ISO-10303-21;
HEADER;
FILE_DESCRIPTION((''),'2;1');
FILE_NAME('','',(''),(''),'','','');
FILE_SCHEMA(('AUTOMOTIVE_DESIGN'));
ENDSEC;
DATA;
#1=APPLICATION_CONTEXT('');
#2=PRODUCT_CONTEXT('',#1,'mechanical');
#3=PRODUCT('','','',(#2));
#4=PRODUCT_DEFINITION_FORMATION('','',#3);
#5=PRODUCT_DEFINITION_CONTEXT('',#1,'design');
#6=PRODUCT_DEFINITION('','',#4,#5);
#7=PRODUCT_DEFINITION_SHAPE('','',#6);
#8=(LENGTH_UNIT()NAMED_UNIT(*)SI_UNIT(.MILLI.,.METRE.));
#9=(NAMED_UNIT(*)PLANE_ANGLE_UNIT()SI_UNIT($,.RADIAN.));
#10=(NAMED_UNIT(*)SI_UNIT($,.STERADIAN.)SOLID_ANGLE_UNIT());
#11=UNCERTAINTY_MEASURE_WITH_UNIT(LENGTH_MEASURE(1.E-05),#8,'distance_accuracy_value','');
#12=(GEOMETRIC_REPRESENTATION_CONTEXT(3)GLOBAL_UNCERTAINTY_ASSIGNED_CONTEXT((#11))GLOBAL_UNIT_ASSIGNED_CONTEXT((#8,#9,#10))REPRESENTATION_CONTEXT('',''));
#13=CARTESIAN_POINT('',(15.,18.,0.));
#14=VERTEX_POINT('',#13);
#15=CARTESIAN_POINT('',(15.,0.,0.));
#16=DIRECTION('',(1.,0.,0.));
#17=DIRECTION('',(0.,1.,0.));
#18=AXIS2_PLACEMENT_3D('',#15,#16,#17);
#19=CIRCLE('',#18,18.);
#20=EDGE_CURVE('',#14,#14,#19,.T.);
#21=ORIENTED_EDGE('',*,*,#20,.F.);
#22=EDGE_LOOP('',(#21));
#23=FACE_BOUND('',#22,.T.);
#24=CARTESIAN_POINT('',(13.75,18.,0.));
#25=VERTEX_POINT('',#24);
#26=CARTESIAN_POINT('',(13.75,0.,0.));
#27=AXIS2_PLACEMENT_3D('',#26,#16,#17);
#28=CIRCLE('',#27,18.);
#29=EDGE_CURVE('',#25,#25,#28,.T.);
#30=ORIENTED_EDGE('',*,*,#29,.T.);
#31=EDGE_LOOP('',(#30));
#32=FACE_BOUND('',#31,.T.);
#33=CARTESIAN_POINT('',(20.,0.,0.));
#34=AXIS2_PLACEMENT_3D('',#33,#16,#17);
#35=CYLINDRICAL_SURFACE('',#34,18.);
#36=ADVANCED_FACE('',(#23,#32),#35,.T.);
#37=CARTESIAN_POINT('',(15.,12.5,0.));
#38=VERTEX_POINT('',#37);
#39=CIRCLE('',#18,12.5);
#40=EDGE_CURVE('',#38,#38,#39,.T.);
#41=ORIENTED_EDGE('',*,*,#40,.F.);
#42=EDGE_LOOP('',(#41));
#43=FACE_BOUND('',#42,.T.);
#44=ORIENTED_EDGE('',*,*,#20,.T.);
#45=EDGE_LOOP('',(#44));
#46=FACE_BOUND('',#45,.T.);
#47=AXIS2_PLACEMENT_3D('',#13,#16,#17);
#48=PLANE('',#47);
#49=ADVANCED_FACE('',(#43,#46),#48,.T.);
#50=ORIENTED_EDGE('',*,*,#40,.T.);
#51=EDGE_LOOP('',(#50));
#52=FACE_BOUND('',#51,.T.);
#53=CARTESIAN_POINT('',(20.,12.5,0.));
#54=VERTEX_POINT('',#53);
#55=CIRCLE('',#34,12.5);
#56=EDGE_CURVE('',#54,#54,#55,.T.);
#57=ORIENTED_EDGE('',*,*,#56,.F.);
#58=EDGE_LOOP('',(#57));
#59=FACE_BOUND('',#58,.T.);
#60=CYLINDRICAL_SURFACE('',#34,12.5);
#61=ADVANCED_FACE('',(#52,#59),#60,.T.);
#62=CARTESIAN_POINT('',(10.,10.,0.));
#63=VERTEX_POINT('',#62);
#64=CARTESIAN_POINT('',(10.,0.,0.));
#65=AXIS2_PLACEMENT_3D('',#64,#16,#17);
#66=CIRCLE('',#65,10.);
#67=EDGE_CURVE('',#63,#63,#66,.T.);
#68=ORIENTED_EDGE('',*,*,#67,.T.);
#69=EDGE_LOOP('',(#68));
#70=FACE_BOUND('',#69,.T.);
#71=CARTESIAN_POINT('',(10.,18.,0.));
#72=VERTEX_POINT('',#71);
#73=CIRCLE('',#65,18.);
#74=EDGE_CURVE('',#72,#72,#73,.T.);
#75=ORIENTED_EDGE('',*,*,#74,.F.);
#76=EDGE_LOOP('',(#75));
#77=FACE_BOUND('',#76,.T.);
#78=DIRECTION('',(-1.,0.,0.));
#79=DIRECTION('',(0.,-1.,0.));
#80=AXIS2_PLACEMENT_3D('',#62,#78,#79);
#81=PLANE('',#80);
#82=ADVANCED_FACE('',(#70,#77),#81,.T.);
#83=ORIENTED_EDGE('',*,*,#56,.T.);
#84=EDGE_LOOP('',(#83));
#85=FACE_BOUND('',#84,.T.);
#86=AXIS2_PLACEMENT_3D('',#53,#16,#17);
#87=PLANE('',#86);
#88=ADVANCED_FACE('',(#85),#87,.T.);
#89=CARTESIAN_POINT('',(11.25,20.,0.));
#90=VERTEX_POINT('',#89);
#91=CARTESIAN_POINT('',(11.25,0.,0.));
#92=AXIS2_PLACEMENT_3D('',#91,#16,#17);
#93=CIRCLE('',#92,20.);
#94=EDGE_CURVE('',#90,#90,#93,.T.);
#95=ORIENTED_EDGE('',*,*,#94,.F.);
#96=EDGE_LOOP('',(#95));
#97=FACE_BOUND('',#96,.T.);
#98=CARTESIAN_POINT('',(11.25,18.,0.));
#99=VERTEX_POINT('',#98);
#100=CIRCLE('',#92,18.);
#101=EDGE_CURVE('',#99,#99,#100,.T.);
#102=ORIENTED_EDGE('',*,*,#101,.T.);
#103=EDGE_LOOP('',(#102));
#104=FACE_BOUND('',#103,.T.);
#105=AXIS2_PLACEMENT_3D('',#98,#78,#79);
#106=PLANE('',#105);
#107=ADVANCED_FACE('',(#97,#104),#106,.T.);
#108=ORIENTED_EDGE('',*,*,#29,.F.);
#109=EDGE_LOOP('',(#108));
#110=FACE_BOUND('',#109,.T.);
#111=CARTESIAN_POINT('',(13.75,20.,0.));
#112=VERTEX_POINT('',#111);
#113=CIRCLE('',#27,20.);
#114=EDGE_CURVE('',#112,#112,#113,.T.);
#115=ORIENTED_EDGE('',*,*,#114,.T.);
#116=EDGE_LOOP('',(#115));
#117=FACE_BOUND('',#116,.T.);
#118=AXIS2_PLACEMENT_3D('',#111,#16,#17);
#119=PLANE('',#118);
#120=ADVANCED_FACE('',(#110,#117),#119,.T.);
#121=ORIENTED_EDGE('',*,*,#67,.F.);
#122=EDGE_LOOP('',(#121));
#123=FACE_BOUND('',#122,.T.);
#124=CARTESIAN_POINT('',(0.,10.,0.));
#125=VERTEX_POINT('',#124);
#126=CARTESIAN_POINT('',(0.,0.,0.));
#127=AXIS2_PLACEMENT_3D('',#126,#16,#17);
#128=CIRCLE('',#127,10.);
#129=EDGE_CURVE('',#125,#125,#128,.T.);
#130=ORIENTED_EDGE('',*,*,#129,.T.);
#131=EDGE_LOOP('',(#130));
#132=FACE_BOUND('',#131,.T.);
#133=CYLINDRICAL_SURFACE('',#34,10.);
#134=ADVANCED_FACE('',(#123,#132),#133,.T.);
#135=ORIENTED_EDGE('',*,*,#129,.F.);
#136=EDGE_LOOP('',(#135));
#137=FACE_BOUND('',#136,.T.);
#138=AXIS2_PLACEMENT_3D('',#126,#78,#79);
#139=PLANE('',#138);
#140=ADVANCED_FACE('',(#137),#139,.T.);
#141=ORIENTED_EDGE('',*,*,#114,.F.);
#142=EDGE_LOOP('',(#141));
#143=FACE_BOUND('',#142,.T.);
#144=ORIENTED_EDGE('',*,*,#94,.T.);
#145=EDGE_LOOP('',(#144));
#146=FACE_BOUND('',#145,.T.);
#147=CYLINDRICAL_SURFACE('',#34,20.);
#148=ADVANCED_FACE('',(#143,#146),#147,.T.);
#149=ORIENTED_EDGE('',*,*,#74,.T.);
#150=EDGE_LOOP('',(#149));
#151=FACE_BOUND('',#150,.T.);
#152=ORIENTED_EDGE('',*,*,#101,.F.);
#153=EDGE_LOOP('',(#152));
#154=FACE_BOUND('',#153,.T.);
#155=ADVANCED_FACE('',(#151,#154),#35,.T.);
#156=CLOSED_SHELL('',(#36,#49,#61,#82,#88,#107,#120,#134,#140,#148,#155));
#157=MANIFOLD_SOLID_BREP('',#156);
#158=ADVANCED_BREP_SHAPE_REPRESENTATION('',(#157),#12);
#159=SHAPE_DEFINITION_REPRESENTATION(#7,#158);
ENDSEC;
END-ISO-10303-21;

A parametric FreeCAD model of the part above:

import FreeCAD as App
import Part
import Sketcher

V = App.Vector
Q = App.Units.Quantity


def add_polygon(sketch, points):
    """Adds a closed chain of lines whose ends are joined by coincident constraints."""
    first, n = sketch.GeometryCount, len(points)
    for a, b in zip(points, points[1:] + points[:1]):
        sketch.addGeometry(Part.LineSegment(App.Vector(*a, 0), App.Vector(*b, 0)), False)
    for i in range(n):
        sketch.addConstraint(Sketcher.Constraint("Coincident", first + i, 2, first + (i + 1) % n, 1))

doc = App.newDocument("Part")
body = doc.addObject("PartDesign::Body", "Body")

sketch1 = body.newObject("Sketcher::SketchObject", "Sketch")
sketch1.AttachmentSupport = (doc.getObject("XY_Plane"), [""])
sketch1.MapMode = "FlatFace"
add_polygon(sketch1, [(0, 10), (0, 0), (20, 0), (20, 12.5), (15, 12.5), (15, 18), (13.75, 18), (13.75, 20), (11.25, 20), (11.25, 18), (10, 18), (10, 10)])
sketch1.addConstraint([
    Sketcher.Constraint("Vertical", 0),
    Sketcher.Constraint("Horizontal", 1),
    Sketcher.Constraint("Vertical", 2),
    Sketcher.Constraint("Horizontal", 3),
    Sketcher.Constraint("Vertical", 4),
    Sketcher.Constraint("Horizontal", 5),
    Sketcher.Constraint("Vertical", 6),
    Sketcher.Constraint("Horizontal", 7),
    Sketcher.Constraint("Vertical", 8),
    Sketcher.Constraint("Horizontal", 9),
    Sketcher.Constraint("Vertical", 10),
    Sketcher.Constraint("Horizontal", 11),
    Sketcher.Constraint("Coincident", 0, 2, -1, 1),
    Sketcher.Constraint("Horizontal", 5, 2, 8, 2),
    Sketcher.Constraint("Equal", 5, 9),
    Sketcher.Constraint("Equal", 11, 0),
    Sketcher.Constraint("DistanceX", 1, 1, 1, 2, Q("20 mm")),
    Sketcher.Constraint("DistanceX", 3, 2, 3, 1, Q("5 mm")),
    Sketcher.Constraint("DistanceX", 11, 2, 11, 1, Q("10 mm")),
    Sketcher.Constraint("DistanceY", 6, 1, 6, 2, Q("2 mm")),
    Sketcher.Constraint("DistanceY", 10, 2, 10, 1, Q("8 mm")),
    Sketcher.Constraint("DistanceX", 7, 2, 7, 1, Q("2.5 mm")),
    Sketcher.Constraint("DistanceY", 2, 1, 2, 2, Q("12.5 mm")),
])
revolution = body.newObject("PartDesign::Revolution", "Revolution")
revolution.Profile = sketch1
revolution.ReferenceAxis = (sketch1, ["H_Axis"])
revolution.Angle = 360

doc.recompute()
